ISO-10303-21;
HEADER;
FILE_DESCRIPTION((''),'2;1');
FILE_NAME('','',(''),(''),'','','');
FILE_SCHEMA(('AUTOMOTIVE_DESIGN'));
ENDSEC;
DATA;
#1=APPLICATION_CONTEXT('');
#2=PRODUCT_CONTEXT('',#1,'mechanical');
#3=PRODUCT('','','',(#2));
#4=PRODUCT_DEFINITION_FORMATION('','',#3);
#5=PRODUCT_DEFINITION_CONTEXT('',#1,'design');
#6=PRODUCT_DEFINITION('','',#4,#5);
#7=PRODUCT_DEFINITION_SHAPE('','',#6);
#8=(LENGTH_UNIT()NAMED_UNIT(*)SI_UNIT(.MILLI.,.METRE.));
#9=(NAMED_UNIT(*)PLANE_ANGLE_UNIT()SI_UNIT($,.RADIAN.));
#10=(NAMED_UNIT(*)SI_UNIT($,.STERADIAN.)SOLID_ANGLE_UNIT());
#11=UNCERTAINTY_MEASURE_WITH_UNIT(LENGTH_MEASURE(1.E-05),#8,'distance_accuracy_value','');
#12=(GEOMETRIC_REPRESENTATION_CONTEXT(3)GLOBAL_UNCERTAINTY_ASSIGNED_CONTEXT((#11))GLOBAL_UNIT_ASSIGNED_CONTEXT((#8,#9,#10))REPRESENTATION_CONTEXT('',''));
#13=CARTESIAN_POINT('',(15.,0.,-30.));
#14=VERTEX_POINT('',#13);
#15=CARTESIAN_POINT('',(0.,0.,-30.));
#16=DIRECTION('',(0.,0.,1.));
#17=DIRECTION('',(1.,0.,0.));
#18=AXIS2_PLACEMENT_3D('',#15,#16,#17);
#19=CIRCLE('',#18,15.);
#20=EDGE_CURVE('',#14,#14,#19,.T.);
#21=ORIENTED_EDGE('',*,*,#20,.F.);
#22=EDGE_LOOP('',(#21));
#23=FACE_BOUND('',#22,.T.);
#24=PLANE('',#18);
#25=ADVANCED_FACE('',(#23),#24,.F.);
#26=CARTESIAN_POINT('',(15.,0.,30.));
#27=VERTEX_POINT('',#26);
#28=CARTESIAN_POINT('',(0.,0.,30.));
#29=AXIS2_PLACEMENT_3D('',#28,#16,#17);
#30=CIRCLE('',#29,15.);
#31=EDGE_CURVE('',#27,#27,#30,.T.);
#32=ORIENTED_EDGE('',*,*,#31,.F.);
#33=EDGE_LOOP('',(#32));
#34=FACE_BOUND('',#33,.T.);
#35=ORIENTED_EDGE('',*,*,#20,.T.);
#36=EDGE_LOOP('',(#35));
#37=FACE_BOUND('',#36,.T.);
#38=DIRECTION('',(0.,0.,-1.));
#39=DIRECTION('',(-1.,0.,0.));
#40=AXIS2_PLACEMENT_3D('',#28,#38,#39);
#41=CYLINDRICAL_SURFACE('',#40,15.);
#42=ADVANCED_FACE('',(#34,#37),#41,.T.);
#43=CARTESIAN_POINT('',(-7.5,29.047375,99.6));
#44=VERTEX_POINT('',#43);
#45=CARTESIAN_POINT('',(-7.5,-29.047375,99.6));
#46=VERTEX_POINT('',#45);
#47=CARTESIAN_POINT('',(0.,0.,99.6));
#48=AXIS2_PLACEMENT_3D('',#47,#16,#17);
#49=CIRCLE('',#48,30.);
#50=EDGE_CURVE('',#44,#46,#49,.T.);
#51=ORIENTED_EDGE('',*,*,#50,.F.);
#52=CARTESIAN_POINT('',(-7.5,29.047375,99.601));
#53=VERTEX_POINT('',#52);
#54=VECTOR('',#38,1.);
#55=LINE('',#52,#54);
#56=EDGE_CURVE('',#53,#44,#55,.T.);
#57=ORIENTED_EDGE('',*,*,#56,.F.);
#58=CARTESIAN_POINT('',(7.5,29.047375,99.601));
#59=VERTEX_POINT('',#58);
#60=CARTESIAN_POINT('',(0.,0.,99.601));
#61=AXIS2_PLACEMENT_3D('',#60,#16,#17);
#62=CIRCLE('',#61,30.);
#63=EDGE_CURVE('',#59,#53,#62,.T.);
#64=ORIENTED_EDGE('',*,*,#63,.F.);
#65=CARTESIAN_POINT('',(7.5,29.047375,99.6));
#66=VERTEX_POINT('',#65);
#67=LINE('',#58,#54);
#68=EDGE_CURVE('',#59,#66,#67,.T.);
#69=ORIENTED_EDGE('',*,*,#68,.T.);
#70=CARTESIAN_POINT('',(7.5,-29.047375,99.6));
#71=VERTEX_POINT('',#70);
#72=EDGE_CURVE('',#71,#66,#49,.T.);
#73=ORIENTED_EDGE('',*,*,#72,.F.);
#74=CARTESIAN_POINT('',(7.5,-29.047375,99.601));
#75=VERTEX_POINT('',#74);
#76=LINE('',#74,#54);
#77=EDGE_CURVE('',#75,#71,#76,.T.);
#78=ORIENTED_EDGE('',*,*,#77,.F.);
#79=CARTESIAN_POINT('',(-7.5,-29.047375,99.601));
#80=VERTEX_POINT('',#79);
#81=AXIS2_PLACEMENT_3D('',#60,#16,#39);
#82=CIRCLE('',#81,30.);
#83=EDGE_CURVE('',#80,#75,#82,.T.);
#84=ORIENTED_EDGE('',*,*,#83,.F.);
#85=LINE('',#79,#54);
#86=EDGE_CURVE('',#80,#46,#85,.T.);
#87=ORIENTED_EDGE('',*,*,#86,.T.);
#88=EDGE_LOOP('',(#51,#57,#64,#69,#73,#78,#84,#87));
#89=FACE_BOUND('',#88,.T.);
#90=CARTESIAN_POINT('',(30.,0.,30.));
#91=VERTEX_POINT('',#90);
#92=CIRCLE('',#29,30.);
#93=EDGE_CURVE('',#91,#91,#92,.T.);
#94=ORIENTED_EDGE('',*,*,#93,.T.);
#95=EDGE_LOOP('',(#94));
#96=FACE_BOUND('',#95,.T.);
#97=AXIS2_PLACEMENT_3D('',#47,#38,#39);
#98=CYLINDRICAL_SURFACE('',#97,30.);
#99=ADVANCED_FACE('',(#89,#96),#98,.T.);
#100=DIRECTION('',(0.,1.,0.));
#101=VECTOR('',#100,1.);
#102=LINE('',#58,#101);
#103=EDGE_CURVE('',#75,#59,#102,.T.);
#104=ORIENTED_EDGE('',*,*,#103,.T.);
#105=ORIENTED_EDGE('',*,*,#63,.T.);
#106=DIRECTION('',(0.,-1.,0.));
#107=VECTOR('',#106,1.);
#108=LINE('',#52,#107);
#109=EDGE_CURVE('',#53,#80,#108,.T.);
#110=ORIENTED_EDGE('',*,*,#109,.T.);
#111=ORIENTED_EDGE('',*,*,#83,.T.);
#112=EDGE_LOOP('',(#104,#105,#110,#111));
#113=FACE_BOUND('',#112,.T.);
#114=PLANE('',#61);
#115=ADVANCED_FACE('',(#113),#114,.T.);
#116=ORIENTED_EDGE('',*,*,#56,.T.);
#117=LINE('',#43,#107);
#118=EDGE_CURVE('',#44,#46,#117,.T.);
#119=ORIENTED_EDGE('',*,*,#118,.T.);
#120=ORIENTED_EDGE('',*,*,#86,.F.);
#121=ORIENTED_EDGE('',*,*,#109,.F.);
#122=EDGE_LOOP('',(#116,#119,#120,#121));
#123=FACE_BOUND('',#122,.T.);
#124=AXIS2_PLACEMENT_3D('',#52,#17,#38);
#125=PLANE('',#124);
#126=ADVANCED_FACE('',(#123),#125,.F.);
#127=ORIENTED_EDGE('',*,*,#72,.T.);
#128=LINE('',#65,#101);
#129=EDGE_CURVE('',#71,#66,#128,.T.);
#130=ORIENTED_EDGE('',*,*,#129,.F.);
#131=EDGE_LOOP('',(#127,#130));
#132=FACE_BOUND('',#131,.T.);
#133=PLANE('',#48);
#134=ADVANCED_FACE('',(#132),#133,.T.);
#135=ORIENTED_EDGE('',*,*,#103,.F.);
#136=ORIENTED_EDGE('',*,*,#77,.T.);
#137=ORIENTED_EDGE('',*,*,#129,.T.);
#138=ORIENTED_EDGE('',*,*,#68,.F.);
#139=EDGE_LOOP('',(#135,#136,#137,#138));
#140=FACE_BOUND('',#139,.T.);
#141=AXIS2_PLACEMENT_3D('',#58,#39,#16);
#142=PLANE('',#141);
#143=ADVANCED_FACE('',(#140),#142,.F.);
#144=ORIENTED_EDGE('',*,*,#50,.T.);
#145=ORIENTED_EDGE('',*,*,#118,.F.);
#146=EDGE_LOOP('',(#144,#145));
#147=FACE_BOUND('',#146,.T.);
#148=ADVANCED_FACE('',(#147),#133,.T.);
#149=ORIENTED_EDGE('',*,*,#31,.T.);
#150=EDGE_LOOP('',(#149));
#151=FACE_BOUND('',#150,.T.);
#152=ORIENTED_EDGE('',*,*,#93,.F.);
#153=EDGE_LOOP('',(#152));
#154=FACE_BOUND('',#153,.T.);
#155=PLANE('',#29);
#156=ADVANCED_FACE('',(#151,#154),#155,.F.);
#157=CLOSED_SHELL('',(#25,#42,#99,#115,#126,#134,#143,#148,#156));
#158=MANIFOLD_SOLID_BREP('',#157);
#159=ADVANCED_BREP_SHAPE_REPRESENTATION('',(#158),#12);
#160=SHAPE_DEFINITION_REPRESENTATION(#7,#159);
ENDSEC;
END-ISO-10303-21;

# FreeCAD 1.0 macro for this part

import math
import FreeCAD as App
import Part
import Sketcher
from FreeCAD import Vector
Q = App.Units.Quantity

doc = App.newDocument("Part")
body = doc.addObject("PartDesign::Body", "Body")

sketch1 = body.newObject("Sketcher::SketchObject", "Sketch")
sketch1.AttachmentSupport = (doc.getObject("XY_Plane"), [""])
sketch1.MapMode = "FlatFace"
sketch1.addGeometry(Part.Circle(Vector(0, 0, 0), Vector(0, 0, 1), 15), False)
sketch1.addConstraint([
    Sketcher.Constraint("Coincident", 0, 3, -1, 1),
    Sketcher.Constraint("Diameter", 0, Q("30 mm")),
])
pad1 = body.newObject("PartDesign::Pad", "Pad")
pad1.Profile = sketch1
pad1.Length = 60
pad1.Midplane = True

sketch2 = body.newObject("Sketcher::SketchObject", "Sketch001")
sketch2.AttachmentSupport = (doc.getObject("XY_Plane"), [""])
sketch2.MapMode = "FlatFace"
sketch2.AttachmentOffset = App.Placement(Vector(0, 0, 30), App.Rotation())
sketch2.addGeometry(Part.Circle(Vector(0, 0, 0), Vector(0, 0, 1), 30), False)
sketch2.addConstraint([
    Sketcher.Constraint("Coincident", 0, 3, -1, 1),
    Sketcher.Constraint("Diameter", 0, Q("60 mm")),
])
pad2 = body.newObject("PartDesign::Pad", "Pad001")
pad2.Profile = sketch2
pad2.Length = 69.6

sketch3 = body.newObject("Sketcher::SketchObject", "Sketch002")
sketch3.AttachmentSupport = (doc.getObject("XY_Plane"), [""])
sketch3.MapMode = "FlatFace"
sketch3.AttachmentOffset = App.Placement(Vector(0, 0, 99.6), App.Rotation())
sketch3.addGeometry([
    Part.LineSegment(Vector(-7.5, 29.047375, 0), Vector(-7.5, -29.047375, 0)),
    Part.ArcOfCircle(Part.Circle(Vector(0, 0, 0), Vector(0, 0, 1), 30), math.radians(-104.477512), math.radians(-75.522488)),
    Part.LineSegment(Vector(7.5, -29.047375, 0), Vector(7.5, 29.047375, 0)),
    Part.ArcOfCircle(Part.Circle(Vector(0, 0, 0), Vector(0, 0, 1), 30), math.radians(75.522488), math.radians(104.477512)),
], False)
sketch3.addConstraint([
    Sketcher.Constraint("Coincident", 0, 2, 1, 1),
    Sketcher.Constraint("Coincident", 1, 2, 2, 1),
    Sketcher.Constraint("Coincident", 2, 2, 3, 1),
    Sketcher.Constraint("Coincident", 3, 2, 0, 1),
    Sketcher.Constraint("Vertical", 0),
    Sketcher.Constraint("Vertical", 2),
    Sketcher.Constraint("Coincident", 1, 3, -1, 1),
    Sketcher.Constraint("Coincident", 3, 3, -1, 1),
    Sketcher.Constraint("Equal", 1, 3),
    Sketcher.Constraint("Horizontal", 0, 2, 1, 2),
    Sketcher.Constraint("Radius", 1, Q("30 mm")),
    Sketcher.Constraint("DistanceX", 0, 2, 1, 2, Q("15 mm")),
])
pad3 = body.newObject("PartDesign::Pad", "Pad002")
pad3.Profile = sketch3
pad3.Length = 0.001

doc.recompute()
